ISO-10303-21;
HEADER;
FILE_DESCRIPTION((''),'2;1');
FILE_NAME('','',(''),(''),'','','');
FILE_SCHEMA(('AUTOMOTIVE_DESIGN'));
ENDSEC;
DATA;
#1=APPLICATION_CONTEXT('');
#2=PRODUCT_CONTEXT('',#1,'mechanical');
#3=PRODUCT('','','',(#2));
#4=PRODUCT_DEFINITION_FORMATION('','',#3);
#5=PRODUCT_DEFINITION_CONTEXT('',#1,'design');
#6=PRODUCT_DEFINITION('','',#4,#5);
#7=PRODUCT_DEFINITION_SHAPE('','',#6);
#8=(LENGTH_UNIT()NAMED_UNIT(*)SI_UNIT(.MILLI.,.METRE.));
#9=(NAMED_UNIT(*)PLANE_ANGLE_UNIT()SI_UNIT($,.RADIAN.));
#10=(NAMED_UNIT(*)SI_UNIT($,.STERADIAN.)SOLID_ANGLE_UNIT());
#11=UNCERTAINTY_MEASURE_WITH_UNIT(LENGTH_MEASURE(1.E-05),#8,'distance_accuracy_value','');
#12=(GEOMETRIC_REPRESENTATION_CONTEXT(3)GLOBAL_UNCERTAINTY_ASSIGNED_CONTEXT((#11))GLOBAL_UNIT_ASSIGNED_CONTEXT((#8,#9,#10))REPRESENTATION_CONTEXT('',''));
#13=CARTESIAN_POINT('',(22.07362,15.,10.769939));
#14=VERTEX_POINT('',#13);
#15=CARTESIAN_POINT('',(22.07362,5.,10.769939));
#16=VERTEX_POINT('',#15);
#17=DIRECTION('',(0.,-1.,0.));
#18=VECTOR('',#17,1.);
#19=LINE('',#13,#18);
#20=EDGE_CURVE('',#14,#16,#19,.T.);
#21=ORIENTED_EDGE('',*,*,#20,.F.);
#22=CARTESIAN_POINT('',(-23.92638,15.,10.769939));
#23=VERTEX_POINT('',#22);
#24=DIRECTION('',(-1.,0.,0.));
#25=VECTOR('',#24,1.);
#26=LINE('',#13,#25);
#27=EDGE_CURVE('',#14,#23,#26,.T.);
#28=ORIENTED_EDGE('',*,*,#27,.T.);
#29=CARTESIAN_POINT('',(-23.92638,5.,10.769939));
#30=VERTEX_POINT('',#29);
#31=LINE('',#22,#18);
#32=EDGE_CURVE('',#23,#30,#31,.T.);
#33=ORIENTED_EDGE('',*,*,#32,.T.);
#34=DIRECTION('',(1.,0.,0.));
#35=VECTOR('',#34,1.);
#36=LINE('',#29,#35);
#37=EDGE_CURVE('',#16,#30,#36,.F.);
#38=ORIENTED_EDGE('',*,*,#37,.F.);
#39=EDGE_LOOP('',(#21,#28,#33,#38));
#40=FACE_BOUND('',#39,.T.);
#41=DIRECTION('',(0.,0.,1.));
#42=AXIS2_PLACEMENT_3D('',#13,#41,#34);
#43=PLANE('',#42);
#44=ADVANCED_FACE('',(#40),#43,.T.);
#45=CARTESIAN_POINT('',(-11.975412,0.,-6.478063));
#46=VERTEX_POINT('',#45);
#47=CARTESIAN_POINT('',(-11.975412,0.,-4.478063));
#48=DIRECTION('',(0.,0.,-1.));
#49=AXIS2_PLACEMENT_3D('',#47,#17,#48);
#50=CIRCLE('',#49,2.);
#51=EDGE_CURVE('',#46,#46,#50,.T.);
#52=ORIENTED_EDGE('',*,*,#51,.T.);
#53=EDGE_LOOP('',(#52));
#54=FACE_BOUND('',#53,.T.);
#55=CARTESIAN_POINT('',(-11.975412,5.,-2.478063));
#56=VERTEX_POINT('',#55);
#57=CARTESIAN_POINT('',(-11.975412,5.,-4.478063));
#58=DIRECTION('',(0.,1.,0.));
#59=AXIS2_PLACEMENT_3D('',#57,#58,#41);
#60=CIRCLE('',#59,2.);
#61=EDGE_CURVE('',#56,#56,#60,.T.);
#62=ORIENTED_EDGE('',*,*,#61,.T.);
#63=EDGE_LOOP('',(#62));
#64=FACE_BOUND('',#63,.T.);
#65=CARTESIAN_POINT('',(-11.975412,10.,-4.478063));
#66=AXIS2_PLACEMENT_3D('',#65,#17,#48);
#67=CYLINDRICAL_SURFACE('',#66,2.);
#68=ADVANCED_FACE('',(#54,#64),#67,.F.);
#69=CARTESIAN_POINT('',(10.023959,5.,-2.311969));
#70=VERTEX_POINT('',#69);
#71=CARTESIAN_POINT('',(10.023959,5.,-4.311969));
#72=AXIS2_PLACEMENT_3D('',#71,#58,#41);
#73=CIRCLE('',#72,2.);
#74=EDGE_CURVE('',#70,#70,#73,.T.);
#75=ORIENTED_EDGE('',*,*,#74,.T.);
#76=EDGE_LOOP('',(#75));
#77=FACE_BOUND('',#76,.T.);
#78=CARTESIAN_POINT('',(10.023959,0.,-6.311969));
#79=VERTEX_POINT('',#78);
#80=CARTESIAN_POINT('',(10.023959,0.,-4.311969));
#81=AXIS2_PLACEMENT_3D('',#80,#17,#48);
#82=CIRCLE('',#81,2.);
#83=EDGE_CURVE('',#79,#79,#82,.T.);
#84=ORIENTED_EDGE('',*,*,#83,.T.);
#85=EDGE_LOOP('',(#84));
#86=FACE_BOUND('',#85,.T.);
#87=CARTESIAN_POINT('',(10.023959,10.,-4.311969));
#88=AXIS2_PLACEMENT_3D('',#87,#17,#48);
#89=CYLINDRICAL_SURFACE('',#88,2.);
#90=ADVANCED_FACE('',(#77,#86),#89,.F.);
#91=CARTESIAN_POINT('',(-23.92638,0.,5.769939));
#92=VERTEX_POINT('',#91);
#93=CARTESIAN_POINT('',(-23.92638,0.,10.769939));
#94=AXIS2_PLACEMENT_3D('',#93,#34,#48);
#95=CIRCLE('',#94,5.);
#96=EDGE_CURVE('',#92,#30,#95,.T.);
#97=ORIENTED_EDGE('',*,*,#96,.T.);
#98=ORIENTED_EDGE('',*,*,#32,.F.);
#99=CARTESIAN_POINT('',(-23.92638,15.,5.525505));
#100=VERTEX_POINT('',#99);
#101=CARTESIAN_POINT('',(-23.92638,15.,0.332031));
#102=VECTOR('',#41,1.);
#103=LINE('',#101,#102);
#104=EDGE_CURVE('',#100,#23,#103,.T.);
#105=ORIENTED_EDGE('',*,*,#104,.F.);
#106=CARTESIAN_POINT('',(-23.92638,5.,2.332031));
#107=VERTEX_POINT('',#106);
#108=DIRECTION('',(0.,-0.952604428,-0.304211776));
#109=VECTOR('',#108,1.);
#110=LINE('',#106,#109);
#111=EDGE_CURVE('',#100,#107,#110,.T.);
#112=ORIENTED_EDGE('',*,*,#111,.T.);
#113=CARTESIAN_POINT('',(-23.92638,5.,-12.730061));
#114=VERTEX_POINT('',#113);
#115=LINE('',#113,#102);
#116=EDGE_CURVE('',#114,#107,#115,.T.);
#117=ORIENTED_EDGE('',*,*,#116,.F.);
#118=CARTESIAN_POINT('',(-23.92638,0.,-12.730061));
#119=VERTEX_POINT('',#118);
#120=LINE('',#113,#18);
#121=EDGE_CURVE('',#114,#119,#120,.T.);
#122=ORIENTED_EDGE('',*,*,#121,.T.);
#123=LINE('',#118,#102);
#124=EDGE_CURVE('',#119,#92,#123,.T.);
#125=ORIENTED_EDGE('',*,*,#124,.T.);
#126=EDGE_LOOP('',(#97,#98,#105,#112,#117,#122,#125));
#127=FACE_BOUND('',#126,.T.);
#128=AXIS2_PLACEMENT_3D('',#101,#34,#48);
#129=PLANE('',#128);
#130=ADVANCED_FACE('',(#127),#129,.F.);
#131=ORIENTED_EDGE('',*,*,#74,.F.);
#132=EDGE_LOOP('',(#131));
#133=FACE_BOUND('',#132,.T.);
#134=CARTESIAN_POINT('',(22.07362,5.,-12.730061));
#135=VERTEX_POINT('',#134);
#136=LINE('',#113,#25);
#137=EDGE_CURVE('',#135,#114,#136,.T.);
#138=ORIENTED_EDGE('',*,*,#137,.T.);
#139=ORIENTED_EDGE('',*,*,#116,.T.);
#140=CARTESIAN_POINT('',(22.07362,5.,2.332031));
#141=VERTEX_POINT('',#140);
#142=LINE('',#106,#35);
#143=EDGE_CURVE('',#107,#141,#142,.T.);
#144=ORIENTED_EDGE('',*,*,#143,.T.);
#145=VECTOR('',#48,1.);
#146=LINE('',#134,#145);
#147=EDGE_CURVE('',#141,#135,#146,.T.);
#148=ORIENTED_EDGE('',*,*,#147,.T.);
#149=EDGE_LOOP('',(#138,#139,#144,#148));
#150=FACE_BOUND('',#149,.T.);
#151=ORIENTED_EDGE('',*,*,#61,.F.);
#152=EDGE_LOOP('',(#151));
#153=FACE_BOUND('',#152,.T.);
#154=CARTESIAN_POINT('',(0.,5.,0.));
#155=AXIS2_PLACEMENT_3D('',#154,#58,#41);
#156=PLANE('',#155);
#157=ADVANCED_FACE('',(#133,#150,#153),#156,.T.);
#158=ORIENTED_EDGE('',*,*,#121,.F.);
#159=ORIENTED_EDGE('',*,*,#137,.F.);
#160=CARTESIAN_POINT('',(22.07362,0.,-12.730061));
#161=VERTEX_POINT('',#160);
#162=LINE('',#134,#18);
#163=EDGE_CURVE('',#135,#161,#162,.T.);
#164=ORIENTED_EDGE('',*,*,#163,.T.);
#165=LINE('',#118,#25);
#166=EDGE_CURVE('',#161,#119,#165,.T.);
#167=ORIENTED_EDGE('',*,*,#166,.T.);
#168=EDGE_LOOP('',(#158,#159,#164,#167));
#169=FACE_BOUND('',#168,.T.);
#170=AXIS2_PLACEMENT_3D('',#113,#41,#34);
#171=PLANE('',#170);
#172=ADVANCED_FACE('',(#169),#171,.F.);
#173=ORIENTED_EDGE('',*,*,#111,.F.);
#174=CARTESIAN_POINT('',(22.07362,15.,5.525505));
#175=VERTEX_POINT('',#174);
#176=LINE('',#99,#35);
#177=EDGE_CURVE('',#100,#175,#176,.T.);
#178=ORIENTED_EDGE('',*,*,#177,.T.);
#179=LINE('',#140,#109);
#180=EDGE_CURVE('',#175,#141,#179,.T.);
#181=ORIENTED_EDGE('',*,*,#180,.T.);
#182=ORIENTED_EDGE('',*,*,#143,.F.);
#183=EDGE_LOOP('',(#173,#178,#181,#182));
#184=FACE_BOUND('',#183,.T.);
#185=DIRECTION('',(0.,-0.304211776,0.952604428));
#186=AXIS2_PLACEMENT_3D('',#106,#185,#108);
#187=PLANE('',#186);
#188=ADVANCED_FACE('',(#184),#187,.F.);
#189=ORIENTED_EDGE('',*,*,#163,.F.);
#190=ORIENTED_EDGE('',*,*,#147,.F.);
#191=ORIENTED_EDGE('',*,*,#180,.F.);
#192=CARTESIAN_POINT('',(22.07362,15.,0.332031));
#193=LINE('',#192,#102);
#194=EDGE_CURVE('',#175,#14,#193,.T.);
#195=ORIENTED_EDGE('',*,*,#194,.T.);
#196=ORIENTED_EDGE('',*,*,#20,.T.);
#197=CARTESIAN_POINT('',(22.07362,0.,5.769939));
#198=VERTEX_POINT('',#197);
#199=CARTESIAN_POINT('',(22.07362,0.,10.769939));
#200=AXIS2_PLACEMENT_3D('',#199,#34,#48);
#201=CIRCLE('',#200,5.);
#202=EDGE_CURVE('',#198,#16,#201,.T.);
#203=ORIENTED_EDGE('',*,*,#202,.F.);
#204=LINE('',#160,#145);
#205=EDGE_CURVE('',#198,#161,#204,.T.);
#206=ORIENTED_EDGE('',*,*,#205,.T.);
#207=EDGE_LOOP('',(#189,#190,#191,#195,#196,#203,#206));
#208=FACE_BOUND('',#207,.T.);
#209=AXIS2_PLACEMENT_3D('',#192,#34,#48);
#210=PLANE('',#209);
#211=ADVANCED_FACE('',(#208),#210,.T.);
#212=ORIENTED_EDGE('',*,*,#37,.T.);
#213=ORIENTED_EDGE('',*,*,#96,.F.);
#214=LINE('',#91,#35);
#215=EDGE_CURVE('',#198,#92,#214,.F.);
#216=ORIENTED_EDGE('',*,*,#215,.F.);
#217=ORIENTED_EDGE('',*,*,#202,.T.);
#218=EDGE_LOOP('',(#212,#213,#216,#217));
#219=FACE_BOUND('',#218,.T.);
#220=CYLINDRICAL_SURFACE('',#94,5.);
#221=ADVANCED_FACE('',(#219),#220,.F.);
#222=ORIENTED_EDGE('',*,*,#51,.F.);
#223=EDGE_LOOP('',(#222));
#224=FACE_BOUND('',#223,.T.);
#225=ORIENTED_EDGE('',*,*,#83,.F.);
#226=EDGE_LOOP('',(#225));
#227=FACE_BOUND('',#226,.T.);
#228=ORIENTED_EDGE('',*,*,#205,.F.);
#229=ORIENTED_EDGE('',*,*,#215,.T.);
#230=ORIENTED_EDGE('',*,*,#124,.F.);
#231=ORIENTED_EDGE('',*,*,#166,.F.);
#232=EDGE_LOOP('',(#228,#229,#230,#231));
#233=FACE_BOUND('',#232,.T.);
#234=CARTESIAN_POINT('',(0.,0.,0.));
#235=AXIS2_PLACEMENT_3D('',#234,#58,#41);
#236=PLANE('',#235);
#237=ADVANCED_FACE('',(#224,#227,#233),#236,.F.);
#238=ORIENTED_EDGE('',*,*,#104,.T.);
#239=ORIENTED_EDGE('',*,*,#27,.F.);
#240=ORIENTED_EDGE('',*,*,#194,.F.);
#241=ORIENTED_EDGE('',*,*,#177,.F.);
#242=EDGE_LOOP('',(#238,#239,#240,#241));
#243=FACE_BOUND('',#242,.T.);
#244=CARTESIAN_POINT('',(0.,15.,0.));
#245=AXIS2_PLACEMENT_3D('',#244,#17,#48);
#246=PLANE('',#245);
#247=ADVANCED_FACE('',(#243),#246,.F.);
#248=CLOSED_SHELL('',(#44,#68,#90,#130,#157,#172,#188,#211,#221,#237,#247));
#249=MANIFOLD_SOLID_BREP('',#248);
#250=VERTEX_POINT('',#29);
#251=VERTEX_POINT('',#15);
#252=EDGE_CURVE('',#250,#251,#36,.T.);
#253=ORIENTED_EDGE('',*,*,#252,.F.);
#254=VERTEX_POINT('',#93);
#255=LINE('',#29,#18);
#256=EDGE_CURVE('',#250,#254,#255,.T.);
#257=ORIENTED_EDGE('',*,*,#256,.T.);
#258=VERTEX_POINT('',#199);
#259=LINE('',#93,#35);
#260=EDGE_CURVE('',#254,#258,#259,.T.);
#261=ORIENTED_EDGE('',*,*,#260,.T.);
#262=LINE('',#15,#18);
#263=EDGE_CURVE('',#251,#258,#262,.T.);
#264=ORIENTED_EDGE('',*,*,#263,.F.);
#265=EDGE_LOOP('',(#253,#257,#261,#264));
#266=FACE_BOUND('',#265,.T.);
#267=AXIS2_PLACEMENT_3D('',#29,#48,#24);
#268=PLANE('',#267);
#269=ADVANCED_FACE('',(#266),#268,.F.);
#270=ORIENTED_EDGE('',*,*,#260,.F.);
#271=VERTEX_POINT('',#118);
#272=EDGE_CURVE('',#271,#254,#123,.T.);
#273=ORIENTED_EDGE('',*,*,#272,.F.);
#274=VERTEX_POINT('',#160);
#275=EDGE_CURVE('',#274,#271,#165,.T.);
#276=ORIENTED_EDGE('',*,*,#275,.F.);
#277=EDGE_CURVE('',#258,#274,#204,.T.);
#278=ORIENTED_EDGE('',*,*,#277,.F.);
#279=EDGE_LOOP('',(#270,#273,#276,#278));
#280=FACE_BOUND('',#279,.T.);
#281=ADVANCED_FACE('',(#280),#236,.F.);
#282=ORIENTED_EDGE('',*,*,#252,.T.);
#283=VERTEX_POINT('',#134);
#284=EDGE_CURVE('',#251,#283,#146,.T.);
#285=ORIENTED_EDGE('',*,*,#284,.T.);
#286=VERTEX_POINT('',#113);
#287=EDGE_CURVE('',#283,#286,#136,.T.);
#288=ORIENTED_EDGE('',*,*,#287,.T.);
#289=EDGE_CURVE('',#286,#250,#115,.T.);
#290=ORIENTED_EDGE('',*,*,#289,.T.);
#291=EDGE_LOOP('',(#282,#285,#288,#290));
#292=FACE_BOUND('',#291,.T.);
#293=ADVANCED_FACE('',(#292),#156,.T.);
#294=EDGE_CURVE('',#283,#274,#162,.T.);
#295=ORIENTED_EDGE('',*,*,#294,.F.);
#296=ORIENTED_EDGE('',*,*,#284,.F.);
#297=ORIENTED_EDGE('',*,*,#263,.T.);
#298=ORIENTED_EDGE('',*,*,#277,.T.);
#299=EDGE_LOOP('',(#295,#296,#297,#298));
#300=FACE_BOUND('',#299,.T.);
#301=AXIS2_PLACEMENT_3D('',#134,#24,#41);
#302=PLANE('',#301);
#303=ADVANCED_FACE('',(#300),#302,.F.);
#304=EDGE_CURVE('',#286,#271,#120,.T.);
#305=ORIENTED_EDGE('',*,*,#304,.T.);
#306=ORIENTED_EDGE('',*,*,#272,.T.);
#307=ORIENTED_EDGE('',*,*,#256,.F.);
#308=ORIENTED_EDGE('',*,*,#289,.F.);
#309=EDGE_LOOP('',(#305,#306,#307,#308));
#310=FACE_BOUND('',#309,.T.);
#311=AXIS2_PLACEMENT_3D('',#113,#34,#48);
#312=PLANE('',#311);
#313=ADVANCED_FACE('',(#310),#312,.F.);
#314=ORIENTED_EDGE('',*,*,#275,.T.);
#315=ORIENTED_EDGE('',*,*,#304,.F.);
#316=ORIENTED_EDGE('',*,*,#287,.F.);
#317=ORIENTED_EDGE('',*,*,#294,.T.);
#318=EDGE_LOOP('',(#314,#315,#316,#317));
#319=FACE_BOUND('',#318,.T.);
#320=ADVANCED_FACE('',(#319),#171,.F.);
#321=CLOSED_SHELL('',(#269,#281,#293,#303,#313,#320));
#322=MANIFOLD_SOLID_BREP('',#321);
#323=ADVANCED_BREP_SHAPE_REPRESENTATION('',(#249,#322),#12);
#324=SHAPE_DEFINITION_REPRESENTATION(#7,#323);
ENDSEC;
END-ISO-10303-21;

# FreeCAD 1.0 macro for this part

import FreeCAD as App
import Part
import Sketcher
Q = App.Units.Quantity


def add_polygon(sketch, points):
    """Adds a closed chain of lines whose ends are joined by coincident constraints."""
    first, n = sketch.GeometryCount, len(points)
    for a, b in zip(points, points[1:] + points[:1]):
        sketch.addGeometry(Part.LineSegment(App.Vector(*a, 0), App.Vector(*b, 0)), False)
    for i in range(n):
        sketch.addConstraint(Sketcher.Constraint("Coincident", first + i, 2, first + (i + 1) % n, 1))

doc = App.newDocument("Part")
params = doc.addObject("Spreadsheet::Sheet", "Params")
for row, (alias, value) in enumerate([
    ("sketch1_width", "46 mm"),
    ("sketch1_height", "23.5 mm"),
    ("pad1_length", "5 mm"),
    ("sketch2_width", "46 mm"),
    ("pad2_length", "10 mm"),
    ("sketch3_width", "46 mm"),
    ("sketch3_height", "23.5 mm"),
    ("pad3_length", "5 mm"),
    ("sketch4_diameter", "4 mm"),
    ("pocket1_length", "10 mm"),
    ("sketch5_diameter", "10 mm"),
    ("sketch5_width", "10 mm"),
    ("sketch5_height", "2 mm"),
], start=1):
    params.set(f"A{row}", alias)
    params.set(f"B{row}", "=" + value)
    params.setAlias(f"B{row}", alias)

body = doc.addObject("PartDesign::Body", "Body")

# Sketch on XZ plane
sketch1 = body.newObject("Sketcher::SketchObject", "Sketch")
sketch1.AttachmentSupport = (doc.getObject("XZ_Plane"), [""])
sketch1.MapMode = "FlatFace"
add_polygon(sketch1, [(-23.92638, -12.730061), (-23.92638, 10.769939), (22.07362, 10.769939), (22.07362, -12.730061)])  # lines 0-3
sketch1.addConstraint([
    Sketcher.Constraint("Vertical", 0),
    Sketcher.Constraint("Horizontal", 1),
    Sketcher.Constraint("Vertical", 2),
    Sketcher.Constraint("Horizontal", 3),
    Sketcher.Constraint("DistanceX", 1, 1, 1, 2, Q("46 mm")),
    Sketcher.Constraint("DistanceY", 0, 1, 0, 2, Q("23.5 mm")),
    Sketcher.Constraint("DistanceX", 0, 2, -1, 1, Q("23.92638 mm")),
    Sketcher.Constraint("DistanceY", -1, 1, 0, 2, Q("10.769939 mm")),
])
sketch1.setExpression("Constraints[8]", "Params.sketch1_width")
sketch1.setExpression("Constraints[9]", "Params.sketch1_height")
pad1 = body.newObject("PartDesign::Pad", "Pad")
pad1.Profile = sketch1
pad1.setExpression("Length", "Params.pad1_length")
pad1.Reversed = True
body2 = doc.addObject("PartDesign::Body", "Body001")

# Sketch on XZ plane
sketch2 = body2.newObject("Sketcher::SketchObject", "Sketch001")
sketch2.AttachmentSupport = (doc.getObject("XZ_Plane001"), [""])
sketch2.MapMode = "FlatFace"
sketch2.AttachmentOffset = App.Placement(App.Vector(0, 0, -5), App.Rotation())
add_polygon(sketch2, [(-23.92638, 0.332031), (-23.92638, 10.769939), (22.07362, 10.769939), (22.07362, 0.332031)])  # lines 0-3
sketch2.addConstraint([
    Sketcher.Constraint("Vertical", 0),
    Sketcher.Constraint("Horizontal", 1),
    Sketcher.Constraint("Vertical", 2),
    Sketcher.Constraint("Horizontal", 3),
    Sketcher.Constraint("DistanceX", 1, 1, 1, 2, Q("46 mm")),
    Sketcher.Constraint("DistanceY", 0, 1, 0, 2, Q("10.437908 mm")),
    Sketcher.Constraint("DistanceX", 0, 2, -1, 1, Q("23.92638 mm")),
    Sketcher.Constraint("DistanceY", -1, 1, 0, 2, Q("10.769939 mm")),
])
sketch2.setExpression("Constraints[8]", "Params.sketch2_width")
pad2 = body2.newObject("PartDesign::Pad", "Pad001")
pad2.Profile = sketch2
pad2.setExpression("Length", "Params.pad2_length")
pad2.Reversed = True

# Sketch on XZ plane
sketch3 = body2.newObject("Sketcher::SketchObject", "Sketch002")
sketch3.AttachmentSupport = (doc.getObject("XZ_Plane001"), [""])
sketch3.MapMode = "FlatFace"
add_polygon(sketch3, [(-23.92638, -12.730061), (-23.92638, 10.769939), (22.07362, 10.769939), (22.07362, -12.730061)])  # lines 0-3
sketch3.addConstraint([
    Sketcher.Constraint("Vertical", 0),
    Sketcher.Constraint("Horizontal", 1),
    Sketcher.Constraint("Vertical", 2),
    Sketcher.Constraint("Horizontal", 3),
    Sketcher.Constraint("DistanceX", 1, 1, 1, 2, Q("46 mm")),
    Sketcher.Constraint("DistanceY", 0, 1, 0, 2, Q("23.5 mm")),
    Sketcher.Constraint("DistanceX", 0, 2, -1, 1, Q("23.92638 mm")),
    Sketcher.Constraint("DistanceY", -1, 1, 0, 2, Q("10.769939 mm")),
])
sketch3.setExpression("Constraints[8]", "Params.sketch3_width")
sketch3.setExpression("Constraints[9]", "Params.sketch3_height")
pad3 = body2.newObject("PartDesign::Pad", "Pad002")
pad3.Profile = sketch3
pad3.setExpression("Length", "Params.pad3_length")
pad3.Reversed = True

# Sketch on XZ plane
sketch4 = body2.newObject("Sketcher::SketchObject", "Sketch003")
sketch4.AttachmentSupport = (doc.getObject("XZ_Plane001"), [""])
sketch4.MapMode = "FlatFace"
sketch4.addGeometry([
    Part.Circle(App.Vector(10.023959, -4.311969, 0), App.Vector(0, 0, 1), 2),
    Part.Circle(App.Vector(-11.975412, -4.478063, 0), App.Vector(0, 0, 1), 2),
], False)
sketch4.addConstraint([
    Sketcher.Constraint("Equal", 0, 1),
    Sketcher.Constraint("Diameter", 0, Q("4 mm")),
    Sketcher.Constraint("DistanceX", -1, 1, 0, 3, Q("10.023959 mm")),
    Sketcher.Constraint("DistanceY", 0, 3, -1, 1, Q("4.311969 mm")),
    Sketcher.Constraint("DistanceX", 1, 3, -1, 1, Q("11.975412 mm")),
    Sketcher.Constraint("DistanceY", 1, 3, -1, 1, Q("4.478063 mm")),
])
sketch4.setExpression("Constraints[1]", "Params.sketch4_diameter")
pocket1 = body2.newObject("PartDesign::Pocket", "Pocket")
pocket1.Profile = sketch4
pocket1.setExpression("Length", "Params.pocket1_length")

# Sketch on YZ plane
sketch5 = body2.newObject("Sketcher::SketchObject", "Sketch004")
sketch5.AttachmentSupport = (doc.getObject("YZ_Plane001"), [""])
sketch5.MapMode = "FlatFace"
sketch5.AttachmentOffset = App.Placement(App.Vector(0, 0, 22.07362), App.Rotation())
sketch5.addGeometry(Part.Circle(App.Vector(0, 10.769939, 0), App.Vector(0, 0, 1), 5), False)  # 0
add_polygon(sketch5, [(5, 2.332031), (5, 0.332031), (15, 0.332031), (15, 5.525505)])  # lines 1-4
sketch5.addConstraint([
    Sketcher.Constraint("Vertical", 1),
    Sketcher.Constraint("Horizontal", 2),
    Sketcher.Constraint("Vertical", 3),
    Sketcher.Constraint("PointOnObject", 0, 3, -2),
    Sketcher.Constraint("Diameter", 0, Q("10 mm")),
    Sketcher.Constraint("DistanceX", 2, 1, 2, 2, Q("10 mm")),
    Sketcher.Constraint("DistanceY", 1, 2, 1, 1, Q("2 mm")),
    Sketcher.Constraint("DistanceX", -1, 1, 1, 2, Q("5 mm")),
    Sketcher.Constraint("DistanceY", 3, 1, 3, 2, Q("5.193474 mm")),
    Sketcher.Constraint("DistanceY", -1, 1, 0, 3, Q("10.769939 mm")),
    Sketcher.Constraint("DistanceY", -1, 1, 1, 2, Q("0.332031 mm")),
])
sketch5.setExpression("Constraints[8]", "Params.sketch5_diameter")
sketch5.setExpression("Constraints[9]", "Params.sketch5_width")
sketch5.setExpression("Constraints[10]", "Params.sketch5_height")
pocket2 = body2.newObject("PartDesign::Pocket", "Pocket001")
pocket2.Profile = sketch5
pocket2.Type = "ThroughAll"
pocket2.Midplane = True

doc.recompute()
